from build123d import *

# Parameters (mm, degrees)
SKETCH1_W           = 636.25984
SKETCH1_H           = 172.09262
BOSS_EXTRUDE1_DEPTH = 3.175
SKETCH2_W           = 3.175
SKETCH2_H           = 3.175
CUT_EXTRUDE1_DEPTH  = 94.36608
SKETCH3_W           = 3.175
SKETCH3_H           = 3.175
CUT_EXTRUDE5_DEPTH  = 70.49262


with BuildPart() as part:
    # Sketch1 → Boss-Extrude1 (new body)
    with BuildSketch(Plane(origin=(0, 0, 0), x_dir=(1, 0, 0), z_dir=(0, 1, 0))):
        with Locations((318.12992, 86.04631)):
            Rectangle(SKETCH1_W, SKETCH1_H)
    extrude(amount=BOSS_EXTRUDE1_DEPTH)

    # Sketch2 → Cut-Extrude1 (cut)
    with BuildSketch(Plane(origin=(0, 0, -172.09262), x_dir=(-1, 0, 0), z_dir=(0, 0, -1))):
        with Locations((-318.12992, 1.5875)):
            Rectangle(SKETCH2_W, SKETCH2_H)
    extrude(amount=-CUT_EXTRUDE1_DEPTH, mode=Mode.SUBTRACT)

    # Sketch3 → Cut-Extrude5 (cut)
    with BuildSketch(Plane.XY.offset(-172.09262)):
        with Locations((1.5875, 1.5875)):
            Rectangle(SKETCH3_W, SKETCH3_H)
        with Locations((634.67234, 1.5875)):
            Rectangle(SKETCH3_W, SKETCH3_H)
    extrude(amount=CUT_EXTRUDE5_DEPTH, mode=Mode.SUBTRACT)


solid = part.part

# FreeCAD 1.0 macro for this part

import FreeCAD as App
import Part
import Sketcher

V = App.Vector
Q = App.Units.Quantity


def add_polygon(sketch, points):
    """Adds a closed chain of lines whose ends are joined by coincident constraints."""
    first, n = sketch.GeometryCount, len(points)
    for a, b in zip(points, points[1:] + points[:1]):
        sketch.addGeometry(Part.LineSegment(App.Vector(*a, 0), App.Vector(*b, 0)), False)
    for i in range(n):
        sketch.addConstraint(Sketcher.Constraint("Coincident", first + i, 2, first + (i + 1) % n, 1))

doc = App.newDocument("Part")
body = doc.addObject("PartDesign::Body", "Body")

# Sketch on XZ plane
sketch1 = doc.addObject("Sketcher::SketchObject", "Sketch")
body.addObject(sketch1)
sketch1.AttachmentSupport = (doc.XZ_Plane, [""])
sketch1.MapMode = "FlatFace"
add_polygon(sketch1, [(0, -172), (0, 0), (636, 0), (636, -172)])  # lines 0-3
sketch1.addConstraint(Sketcher.Constraint("Vertical", 0))
sketch1.addConstraint(Sketcher.Constraint("Horizontal", 1))
sketch1.addConstraint(Sketcher.Constraint("Vertical", 2))
sketch1.addConstraint(Sketcher.Constraint("Horizontal", 3))
sketch1.addConstraint(Sketcher.Constraint("Coincident", 0, 2, -1, 1))
sketch1.addConstraint(Sketcher.Constraint("DistanceX", 1, 1, 1, 2, Q("25.0496 in")))
sketch1.addConstraint(Sketcher.Constraint("DistanceY", 0, 1, 0, 2, Q("6.7753 in")))
pad1 = doc.addObject("PartDesign::Pad", "Pad")
body.addObject(pad1)
pad1.Profile = sketch1
pad1.Length = Q("0.125 in")
pad1.Reversed = True

# Sketch on XY plane
sketch2 = doc.addObject("Sketcher::SketchObject", "Sketch001")
body.addObject(sketch2)
sketch2.AttachmentSupport = (doc.XY_Plane, [""])
sketch2.MapMode = "FlatFace"
sketch2.AttachmentOffset = App.Placement(V(0, 0, -6.7753 * 25.4), App.Rotation())
add_polygon(sketch2, [(319.7, 3.2), (319.7, 0), (316.5, 0), (316.5, 3.2)])  # lines 0-3
sketch2.addConstraint(Sketcher.Constraint("Vertical", 0))
sketch2.addConstraint(Sketcher.Constraint("Horizontal", 1))
sketch2.addConstraint(Sketcher.Constraint("Vertical", 2))
sketch2.addConstraint(Sketcher.Constraint("Horizontal", 3))
sketch2.addConstraint(Sketcher.Constraint("PointOnObject", 0, 2, -1))
sketch2.addConstraint(Sketcher.Constraint("Equal", 3, 0))
sketch2.addConstraint(Sketcher.Constraint("DistanceX", 1, 2, 1, 1, Q("0.125 in")))
sketch2.addConstraint(Sketcher.Constraint("DistanceX", -1, 1, 0, 2, Q("12.5873 in")))
pocket1 = doc.addObject("PartDesign::Pocket", "Pocket")
body.addObject(pocket1)
pocket1.Profile = sketch2
pocket1.Length = Q("3.7152 in")
pocket1.Reversed = True

# Sketch on XY plane
sketch3 = doc.addObject("Sketcher::SketchObject", "Sketch002")
body.addObject(sketch3)
sketch3.AttachmentSupport = (doc.XY_Plane, [""])
sketch3.MapMode = "FlatFace"
sketch3.AttachmentOffset = App.Placement(V(0, 0, -6.7753 * 25.4), App.Rotation())
add_polygon(sketch3, [(0, 3.2), (0, 0), (3.2, 0), (3.2, 3.2)])  # lines 0-3
add_polygon(sketch3, [(633.1, 3.2), (633.1, 0), (636.3, 0), (636.3, 3.2)])  # lines 4-7
sketch3.addConstraint(Sketcher.Constraint("Vertical", 0))
sketch3.addConstraint(Sketcher.Constraint("Horizontal", 1))
sketch3.addConstraint(Sketcher.Constraint("Vertical", 2))
sketch3.addConstraint(Sketcher.Constraint("Horizontal", 3))
sketch3.addConstraint(Sketcher.Constraint("Vertical", 4))
sketch3.addConstraint(Sketcher.Constraint("Horizontal", 5))
sketch3.addConstraint(Sketcher.Constraint("Vertical", 6))
sketch3.addConstraint(Sketcher.Constraint("Horizontal", 7))
sketch3.addConstraint(Sketcher.Constraint("Coincident", 0, 2, -1, 1))
sketch3.addConstraint(Sketcher.Constraint("PointOnObject", 4, 2, -1))
sketch3.addConstraint(Sketcher.Constraint("Horizontal", 3, 2, 6, 2))
sketch3.addConstraint(Sketcher.Constraint("Equal", 3, 5))
sketch3.addConstraint(Sketcher.Constraint("Equal", 7, 0))
sketch3.addConstraint(Sketcher.Constraint("DistanceX", 1, 1, 1, 2, Q("0.125 in")))
sketch3.addConstraint(Sketcher.Constraint("DistanceX", -1, 1, 4, 2, Q("24.9246 in")))
pocket2 = doc.addObject("PartDesign::Pocket", "Pocket001")
body.addObject(pocket2)
pocket2.Profile = sketch3
pocket2.Length = Q("2.7753 in")
pocket2.Reversed = True

doc.recompute()
